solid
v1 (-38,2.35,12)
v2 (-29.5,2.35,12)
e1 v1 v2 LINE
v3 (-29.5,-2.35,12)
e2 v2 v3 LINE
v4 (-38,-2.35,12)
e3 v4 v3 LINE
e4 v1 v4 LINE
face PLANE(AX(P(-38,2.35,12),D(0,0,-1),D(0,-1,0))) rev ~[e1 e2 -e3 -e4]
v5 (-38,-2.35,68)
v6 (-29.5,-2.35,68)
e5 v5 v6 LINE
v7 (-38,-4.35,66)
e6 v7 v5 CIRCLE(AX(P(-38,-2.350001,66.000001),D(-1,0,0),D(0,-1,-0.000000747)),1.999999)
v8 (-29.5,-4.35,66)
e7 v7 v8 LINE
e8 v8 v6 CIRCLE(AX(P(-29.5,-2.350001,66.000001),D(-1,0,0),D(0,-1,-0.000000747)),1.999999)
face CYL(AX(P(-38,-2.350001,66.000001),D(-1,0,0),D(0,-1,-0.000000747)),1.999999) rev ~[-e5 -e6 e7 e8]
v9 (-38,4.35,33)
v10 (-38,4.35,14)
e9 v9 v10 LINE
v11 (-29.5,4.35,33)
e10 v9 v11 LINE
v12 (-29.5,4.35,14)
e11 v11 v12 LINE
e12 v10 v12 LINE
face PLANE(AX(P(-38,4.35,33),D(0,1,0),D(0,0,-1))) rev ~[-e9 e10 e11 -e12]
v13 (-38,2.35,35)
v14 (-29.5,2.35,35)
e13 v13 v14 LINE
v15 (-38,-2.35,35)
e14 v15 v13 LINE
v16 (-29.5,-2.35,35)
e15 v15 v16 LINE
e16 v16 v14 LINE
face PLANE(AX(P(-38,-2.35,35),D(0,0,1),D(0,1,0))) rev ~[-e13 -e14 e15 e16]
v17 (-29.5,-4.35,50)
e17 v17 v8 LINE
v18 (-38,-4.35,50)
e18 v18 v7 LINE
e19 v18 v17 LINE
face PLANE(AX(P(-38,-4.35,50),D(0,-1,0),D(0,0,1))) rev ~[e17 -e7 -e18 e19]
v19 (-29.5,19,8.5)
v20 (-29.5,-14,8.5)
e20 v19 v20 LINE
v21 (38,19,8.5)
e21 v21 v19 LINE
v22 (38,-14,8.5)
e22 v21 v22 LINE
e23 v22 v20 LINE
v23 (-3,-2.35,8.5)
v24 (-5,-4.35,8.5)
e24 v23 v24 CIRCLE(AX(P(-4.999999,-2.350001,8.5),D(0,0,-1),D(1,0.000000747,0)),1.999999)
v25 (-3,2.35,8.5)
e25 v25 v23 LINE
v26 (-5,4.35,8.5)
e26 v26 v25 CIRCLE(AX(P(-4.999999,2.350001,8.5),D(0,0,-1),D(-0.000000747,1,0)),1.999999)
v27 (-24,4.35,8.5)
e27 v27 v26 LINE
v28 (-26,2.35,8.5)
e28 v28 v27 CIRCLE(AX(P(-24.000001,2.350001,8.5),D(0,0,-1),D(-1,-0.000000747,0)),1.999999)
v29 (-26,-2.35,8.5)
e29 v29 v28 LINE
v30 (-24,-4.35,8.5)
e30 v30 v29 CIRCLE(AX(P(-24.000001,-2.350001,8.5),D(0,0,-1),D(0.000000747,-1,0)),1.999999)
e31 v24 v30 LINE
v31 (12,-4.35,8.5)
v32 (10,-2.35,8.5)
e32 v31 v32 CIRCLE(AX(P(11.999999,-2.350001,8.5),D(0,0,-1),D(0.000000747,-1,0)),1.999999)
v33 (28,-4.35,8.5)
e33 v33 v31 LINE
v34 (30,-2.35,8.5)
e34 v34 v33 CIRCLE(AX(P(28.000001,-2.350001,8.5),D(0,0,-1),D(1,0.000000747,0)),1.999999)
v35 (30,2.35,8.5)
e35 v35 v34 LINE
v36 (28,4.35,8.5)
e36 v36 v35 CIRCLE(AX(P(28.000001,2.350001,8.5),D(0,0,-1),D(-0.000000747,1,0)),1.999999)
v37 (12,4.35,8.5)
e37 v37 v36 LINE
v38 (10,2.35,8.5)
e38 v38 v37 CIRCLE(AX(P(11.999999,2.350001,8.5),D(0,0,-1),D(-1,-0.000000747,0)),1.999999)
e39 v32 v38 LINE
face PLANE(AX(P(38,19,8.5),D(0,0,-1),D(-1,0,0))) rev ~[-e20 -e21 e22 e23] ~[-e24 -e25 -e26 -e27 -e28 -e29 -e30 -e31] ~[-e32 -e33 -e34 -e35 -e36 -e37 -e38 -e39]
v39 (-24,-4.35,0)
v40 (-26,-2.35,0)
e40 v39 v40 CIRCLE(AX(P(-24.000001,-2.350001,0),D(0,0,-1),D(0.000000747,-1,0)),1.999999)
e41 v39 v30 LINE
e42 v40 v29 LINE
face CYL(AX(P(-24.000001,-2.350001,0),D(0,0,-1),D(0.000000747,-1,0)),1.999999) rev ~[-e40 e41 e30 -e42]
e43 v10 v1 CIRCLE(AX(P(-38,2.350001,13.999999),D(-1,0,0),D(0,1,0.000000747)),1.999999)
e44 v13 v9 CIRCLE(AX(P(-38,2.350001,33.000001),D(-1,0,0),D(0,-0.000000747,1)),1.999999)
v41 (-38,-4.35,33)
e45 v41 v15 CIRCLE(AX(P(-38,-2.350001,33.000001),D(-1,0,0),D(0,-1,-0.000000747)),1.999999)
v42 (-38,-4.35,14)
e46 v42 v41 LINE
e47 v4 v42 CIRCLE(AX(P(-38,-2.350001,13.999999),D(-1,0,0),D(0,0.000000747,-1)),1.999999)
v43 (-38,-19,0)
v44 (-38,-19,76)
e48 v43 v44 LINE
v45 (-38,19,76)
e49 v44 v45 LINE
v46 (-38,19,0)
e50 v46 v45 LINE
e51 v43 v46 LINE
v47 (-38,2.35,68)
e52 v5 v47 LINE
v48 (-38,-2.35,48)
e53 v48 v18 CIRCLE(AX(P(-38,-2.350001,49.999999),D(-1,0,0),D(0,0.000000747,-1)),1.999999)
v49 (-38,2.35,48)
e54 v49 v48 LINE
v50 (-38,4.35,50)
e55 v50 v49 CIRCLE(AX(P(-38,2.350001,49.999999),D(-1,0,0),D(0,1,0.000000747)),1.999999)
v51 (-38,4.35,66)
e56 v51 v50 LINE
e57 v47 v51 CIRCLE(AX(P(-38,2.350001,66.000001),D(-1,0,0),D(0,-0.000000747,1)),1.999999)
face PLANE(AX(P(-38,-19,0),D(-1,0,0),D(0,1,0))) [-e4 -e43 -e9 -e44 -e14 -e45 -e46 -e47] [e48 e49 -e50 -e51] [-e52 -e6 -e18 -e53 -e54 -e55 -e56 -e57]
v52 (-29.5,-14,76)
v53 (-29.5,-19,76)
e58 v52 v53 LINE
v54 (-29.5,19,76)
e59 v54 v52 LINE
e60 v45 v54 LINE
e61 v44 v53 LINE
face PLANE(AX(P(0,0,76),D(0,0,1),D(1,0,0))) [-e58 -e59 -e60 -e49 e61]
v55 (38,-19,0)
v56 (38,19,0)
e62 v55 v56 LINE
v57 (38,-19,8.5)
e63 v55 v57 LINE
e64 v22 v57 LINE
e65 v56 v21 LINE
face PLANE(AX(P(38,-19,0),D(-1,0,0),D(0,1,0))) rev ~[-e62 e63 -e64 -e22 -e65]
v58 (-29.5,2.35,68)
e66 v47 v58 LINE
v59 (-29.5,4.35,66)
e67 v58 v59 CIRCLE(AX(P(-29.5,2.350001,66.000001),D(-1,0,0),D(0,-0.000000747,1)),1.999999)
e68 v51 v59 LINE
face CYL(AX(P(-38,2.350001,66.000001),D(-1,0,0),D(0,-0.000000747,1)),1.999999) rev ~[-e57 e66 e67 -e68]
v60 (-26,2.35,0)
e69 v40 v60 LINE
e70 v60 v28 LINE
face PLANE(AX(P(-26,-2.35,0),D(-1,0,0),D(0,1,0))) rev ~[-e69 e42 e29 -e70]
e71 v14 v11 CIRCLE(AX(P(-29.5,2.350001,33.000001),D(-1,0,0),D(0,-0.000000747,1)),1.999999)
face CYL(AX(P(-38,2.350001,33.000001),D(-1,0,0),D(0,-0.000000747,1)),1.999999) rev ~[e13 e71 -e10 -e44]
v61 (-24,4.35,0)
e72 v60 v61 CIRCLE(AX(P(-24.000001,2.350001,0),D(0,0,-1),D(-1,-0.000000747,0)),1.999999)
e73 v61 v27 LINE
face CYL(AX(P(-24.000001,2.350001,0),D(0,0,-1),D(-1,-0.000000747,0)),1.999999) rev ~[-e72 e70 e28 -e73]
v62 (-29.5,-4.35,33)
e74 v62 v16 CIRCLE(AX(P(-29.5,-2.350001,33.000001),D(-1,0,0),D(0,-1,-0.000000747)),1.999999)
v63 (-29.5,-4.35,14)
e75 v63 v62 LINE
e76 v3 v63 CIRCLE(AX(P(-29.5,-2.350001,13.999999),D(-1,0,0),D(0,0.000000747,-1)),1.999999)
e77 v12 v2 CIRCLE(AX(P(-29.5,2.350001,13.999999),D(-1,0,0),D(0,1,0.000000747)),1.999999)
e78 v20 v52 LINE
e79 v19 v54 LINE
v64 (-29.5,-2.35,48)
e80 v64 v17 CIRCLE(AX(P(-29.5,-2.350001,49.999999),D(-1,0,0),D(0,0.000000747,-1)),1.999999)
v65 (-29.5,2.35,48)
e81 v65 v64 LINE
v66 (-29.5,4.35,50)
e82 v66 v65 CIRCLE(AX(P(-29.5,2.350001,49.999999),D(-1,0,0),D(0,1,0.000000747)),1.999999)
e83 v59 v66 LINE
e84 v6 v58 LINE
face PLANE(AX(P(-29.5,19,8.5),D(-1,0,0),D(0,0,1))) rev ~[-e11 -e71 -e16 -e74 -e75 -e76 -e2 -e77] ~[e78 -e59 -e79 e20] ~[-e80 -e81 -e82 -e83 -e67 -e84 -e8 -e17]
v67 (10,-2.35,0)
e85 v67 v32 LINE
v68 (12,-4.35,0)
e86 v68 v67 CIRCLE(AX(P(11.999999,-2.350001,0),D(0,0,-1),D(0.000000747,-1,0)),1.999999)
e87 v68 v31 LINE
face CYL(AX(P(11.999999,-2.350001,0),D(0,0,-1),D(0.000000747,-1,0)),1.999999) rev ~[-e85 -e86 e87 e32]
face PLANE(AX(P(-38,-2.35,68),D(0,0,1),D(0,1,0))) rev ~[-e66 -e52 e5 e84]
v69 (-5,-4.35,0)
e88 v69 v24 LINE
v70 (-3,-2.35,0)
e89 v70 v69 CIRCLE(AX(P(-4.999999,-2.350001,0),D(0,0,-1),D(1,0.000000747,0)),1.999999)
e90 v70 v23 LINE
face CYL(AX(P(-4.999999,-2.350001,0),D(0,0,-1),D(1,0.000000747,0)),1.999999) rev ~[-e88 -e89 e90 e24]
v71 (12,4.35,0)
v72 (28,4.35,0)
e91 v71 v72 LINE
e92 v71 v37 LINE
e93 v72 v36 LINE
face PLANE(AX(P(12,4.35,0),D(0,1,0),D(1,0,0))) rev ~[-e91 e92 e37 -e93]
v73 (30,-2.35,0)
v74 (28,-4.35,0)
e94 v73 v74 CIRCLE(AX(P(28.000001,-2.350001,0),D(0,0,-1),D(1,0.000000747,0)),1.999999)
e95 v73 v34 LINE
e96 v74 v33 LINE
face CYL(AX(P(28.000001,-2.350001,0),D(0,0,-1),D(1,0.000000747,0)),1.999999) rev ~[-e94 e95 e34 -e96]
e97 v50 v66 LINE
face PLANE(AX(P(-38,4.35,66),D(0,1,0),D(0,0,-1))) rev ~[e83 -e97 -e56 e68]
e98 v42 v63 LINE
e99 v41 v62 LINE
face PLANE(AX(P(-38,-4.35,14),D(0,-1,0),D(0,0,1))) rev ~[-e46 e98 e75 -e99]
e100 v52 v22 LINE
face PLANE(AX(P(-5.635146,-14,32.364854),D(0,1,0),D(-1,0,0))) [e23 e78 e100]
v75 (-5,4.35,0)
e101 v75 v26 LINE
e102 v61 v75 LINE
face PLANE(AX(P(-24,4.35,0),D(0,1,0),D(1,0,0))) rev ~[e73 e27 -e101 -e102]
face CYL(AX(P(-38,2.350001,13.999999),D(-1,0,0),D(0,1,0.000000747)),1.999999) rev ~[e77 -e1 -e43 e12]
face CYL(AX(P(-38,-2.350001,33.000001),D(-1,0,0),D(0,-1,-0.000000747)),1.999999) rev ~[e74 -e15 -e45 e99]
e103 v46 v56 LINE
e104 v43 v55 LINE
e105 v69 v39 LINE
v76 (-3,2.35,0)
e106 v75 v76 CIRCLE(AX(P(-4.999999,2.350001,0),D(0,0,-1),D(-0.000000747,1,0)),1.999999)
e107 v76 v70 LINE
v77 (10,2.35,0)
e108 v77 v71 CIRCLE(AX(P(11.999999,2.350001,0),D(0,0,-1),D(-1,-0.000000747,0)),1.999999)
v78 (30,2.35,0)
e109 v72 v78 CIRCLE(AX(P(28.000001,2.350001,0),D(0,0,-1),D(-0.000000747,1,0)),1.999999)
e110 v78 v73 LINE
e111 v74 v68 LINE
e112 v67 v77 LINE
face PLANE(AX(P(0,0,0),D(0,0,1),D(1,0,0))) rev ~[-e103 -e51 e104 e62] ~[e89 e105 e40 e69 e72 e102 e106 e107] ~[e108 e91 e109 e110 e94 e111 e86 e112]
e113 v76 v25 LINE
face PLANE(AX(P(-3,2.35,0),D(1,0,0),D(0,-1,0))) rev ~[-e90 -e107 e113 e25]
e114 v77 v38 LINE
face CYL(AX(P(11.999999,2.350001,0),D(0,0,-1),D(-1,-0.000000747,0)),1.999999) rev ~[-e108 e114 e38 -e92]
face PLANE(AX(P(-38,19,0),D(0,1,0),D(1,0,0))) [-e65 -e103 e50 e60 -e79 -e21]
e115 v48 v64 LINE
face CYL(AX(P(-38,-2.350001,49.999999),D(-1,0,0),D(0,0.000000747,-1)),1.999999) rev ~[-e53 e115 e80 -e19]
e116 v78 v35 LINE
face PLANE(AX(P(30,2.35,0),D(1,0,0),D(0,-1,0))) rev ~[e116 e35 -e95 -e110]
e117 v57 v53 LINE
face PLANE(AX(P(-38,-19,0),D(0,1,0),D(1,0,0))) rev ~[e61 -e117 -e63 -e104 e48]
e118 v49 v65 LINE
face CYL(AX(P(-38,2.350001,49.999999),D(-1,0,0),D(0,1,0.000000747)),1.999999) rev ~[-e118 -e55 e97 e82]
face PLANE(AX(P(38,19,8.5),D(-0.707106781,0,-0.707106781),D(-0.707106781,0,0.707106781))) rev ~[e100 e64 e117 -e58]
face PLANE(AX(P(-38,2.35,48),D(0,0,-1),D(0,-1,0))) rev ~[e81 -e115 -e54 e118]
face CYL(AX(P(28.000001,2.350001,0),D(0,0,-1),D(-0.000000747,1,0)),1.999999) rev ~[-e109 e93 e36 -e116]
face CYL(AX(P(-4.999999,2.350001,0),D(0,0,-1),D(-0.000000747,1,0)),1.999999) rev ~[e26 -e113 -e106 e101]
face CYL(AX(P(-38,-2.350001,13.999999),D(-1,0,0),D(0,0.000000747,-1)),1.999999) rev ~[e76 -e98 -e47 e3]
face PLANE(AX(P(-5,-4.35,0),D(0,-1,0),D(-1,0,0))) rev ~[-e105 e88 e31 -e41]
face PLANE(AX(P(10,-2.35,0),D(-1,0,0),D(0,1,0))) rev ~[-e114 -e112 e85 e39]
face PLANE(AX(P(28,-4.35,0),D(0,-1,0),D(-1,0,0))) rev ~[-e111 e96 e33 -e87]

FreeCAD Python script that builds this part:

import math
import FreeCAD as App
import Part
import Sketcher

V = App.Vector


def add_polygon(sketch, points):
    """Adds a closed chain of lines whose ends are joined by coincident constraints."""
    first, n = sketch.GeometryCount, len(points)
    for a, b in zip(points, points[1:] + points[:1]):
        sketch.addGeometry(Part.LineSegment(App.Vector(*a, 0), App.Vector(*b, 0)), False)
    for i in range(n):
        sketch.addConstraint(Sketcher.Constraint("Coincident", first + i, 2, first + (i + 1) % n, 1))

doc = App.newDocument("Part")
body = doc.addObject("PartDesign::Body", "Body")

# Sketch on XY plane
sketch1 = doc.addObject("Sketcher::SketchObject", "Sketch")
body.addObject(sketch1)
sketch1.AttachmentSupport = (doc.XY_Plane, [""])
sketch1.MapMode = "FlatFace"
add_polygon(sketch1, [(-38, 19), (-38, -19), (38, -19), (38, 19)])  # lines 0-3
sketch1.addConstraint([
    Sketcher.Constraint("Vertical", 0),
    Sketcher.Constraint("Horizontal", 1),
    Sketcher.Constraint("Vertical", 2),
    Sketcher.Constraint("Horizontal", 3),
    Sketcher.Constraint("Symmetric", 0, 2, 2, 2, -1, 1),
    Sketcher.Constraint("DistanceX", 1, 1, 1, 2, 76.0),
    Sketcher.Constraint("DistanceY", 0, 2, 0, 1, 38.0),
])
pad1 = doc.addObject("PartDesign::Pad", "Pad")
body.addObject(pad1)
pad1.Profile = sketch1
pad1.Length = 76

# Sketch on XZ plane
sketch2 = doc.addObject("Sketcher::SketchObject", "Sketch001")
body.addObject(sketch2)
sketch2.AttachmentSupport = (doc.XZ_Plane, [""])
sketch2.MapMode = "FlatFace"
sketch2.AttachmentOffset = App.Placement(V(0, 0, -19), App.Rotation())
add_polygon(sketch2, [(38, 8), (-30, 76), (38, 76)])  # lines 0-2
sketch2.addConstraint([
    Sketcher.Constraint("Horizontal", 1),
    Sketcher.Constraint("Vertical", 2),
    Sketcher.Constraint("Equal", 1, 2),
    Sketcher.Constraint("DistanceX", 1, 1, 1, 2, 67.5),
    Sketcher.Constraint("DistanceY", -1, 1, 0, 2, 76.0),
    Sketcher.Constraint("DistanceX", -1, 1, 1, 2, 38.0),
])
pocket1 = doc.addObject("PartDesign::Pocket", "Pocket")
body.addObject(pocket1)
pocket1.Profile = sketch2
pocket1.Type = "ThroughAll"
pocket1.Reversed = True

# Sketch on XZ plane
sketch3 = doc.addObject("Sketcher::SketchObject", "Sketch002")
body.addObject(sketch3)
sketch3.AttachmentSupport = (doc.XZ_Plane, [""])
sketch3.MapMode = "FlatFace"
sketch3.AttachmentOffset = App.Placement(V(0, 0, -19), App.Rotation())
add_polygon(sketch3, [(-30, 8), (-30, 76), (38, 8)])  # lines 0-2
sketch3.addConstraint([
    Sketcher.Constraint("Vertical", 0),
    Sketcher.Constraint("Horizontal", 2),
    Sketcher.Constraint("Equal", 2, 0),
    Sketcher.Constraint("DistanceX", 2, 2, 2, 1, 67.5),
    Sketcher.Constraint("DistanceY", -1, 1, 0, 2, 76.0),
    Sketcher.Constraint("DistanceX", -1, 1, 1, 2, 38.0),
])
pocket2 = doc.addObject("PartDesign::Pocket", "Pocket001")
body.addObject(pocket2)
pocket2.Profile = sketch3
pocket2.Length = 33
pocket2.Reversed = True

# Sketch on YZ plane
sketch4 = doc.addObject("Sketcher::SketchObject", "Sketch003")
body.addObject(sketch4)
sketch4.AttachmentSupport = (doc.YZ_Plane, [""])
sketch4.MapMode = "FlatFace"
sketch4.AttachmentOffset = App.Placement(V(0, 0, -38), App.Rotation())
sketch4.addGeometry([
    Part.LineSegment(V(-2.4, 68, 0), V(2.4, 68, 0)),  # 0
    Part.ArcOfCircle(Part.Circle(V(2.4, 66, 0), V(0, 0, 1), 2), math.radians(0), math.radians(90)),  # 1
    Part.LineSegment(V(4.3, 66, 0), V(4.3, 50, 0)),  # 2
    Part.ArcOfCircle(Part.Circle(V(2.4, 50, 0), V(0, 0, 1), 2), math.radians(-90), math.radians(0)),  # 3
    Part.LineSegment(V(2.4, 48, 0), V(-2.4, 48, 0)),  # 4
    Part.ArcOfCircle(Part.Circle(V(-2.4, 50, 0), V(0, 0, 1), 2), math.radians(180), math.radians(270)),  # 5
    Part.LineSegment(V(-4.3, 50, 0), V(-4.3, 66, 0)),  # 6
    Part.ArcOfCircle(Part.Circle(V(-2.4, 66, 0), V(0, 0, 1), 2), math.radians(90), math.radians(180)),  # 7
    Part.LineSegment(V(-2.4, 35, 0), V(2.4, 35, 0)),  # 8
    Part.ArcOfCircle(Part.Circle(V(2.4, 33, 0), V(0, 0, 1), 2), math.radians(0), math.radians(90)),  # 9
    Part.LineSegment(V(4.3, 33, 0), V(4.3, 14, 0)),  # 10
    Part.ArcOfCircle(Part.Circle(V(2.4, 14, 0), V(0, 0, 1), 2), math.radians(-90), math.radians(0)),  # 11
    Part.LineSegment(V(2.4, 12, 0), V(-2.4, 12, 0)),  # 12
    Part.ArcOfCircle(Part.Circle(V(-2.4, 14, 0), V(0, 0, 1), 2), math.radians(180), math.radians(270)),  # 13
    Part.LineSegment(V(-4.3, 14, 0), V(-4.3, 33, 0)),  # 14
    Part.ArcOfCircle(Part.Circle(V(-2.4, 33, 0), V(0, 0, 1), 2), math.radians(90), math.radians(180)),  # 15
], False)
sketch4.addConstraint([
    Sketcher.Constraint("Tangent", 0, 2, 1, 2),
    Sketcher.Constraint("Tangent", 1, 1, 2, 1),
    Sketcher.Constraint("Tangent", 2, 2, 3, 2),
    Sketcher.Constraint("Tangent", 3, 1, 4, 1),
    Sketcher.Constraint("Tangent", 4, 2, 5, 2),
    Sketcher.Constraint("Tangent", 5, 1, 6, 1),
    Sketcher.Constraint("Tangent", 6, 2, 7, 2),
    Sketcher.Constraint("Tangent", 7, 1, 0, 1),
    Sketcher.Constraint("Tangent", 8, 2, 9, 2),
    Sketcher.Constraint("Tangent", 9, 1, 10, 1),
    Sketcher.Constraint("Tangent", 10, 2, 11, 2),
    Sketcher.Constraint("Tangent", 11, 1, 12, 1),
    Sketcher.Constraint("Tangent", 12, 2, 13, 2),
    Sketcher.Constraint("Tangent", 13, 1, 14, 1),
    Sketcher.Constraint("Tangent", 14, 2, 15, 2),
    Sketcher.Constraint("Tangent", 15, 1, 8, 1),
    Sketcher.Constraint("Horizontal", 0),
    Sketcher.Constraint("Vertical", 2),
    Sketcher.Constraint("Horizontal", 4),
    Sketcher.Constraint("Vertical", 6),
    Sketcher.Constraint("Horizontal", 8),
    Sketcher.Constraint("Vertical", 10),
    Sketcher.Constraint("Horizontal", 12),
    Sketcher.Constraint("Vertical", 14),
    Sketcher.Constraint("Equal", 1, 3),
    Sketcher.Constraint("Equal", 3, 5),
    Sketcher.Constraint("Equal", 5, 7),
    Sketcher.Constraint("Equal", 7, 9),
    Sketcher.Constraint("Equal", 9, 11),
    Sketcher.Constraint("Equal", 11, 13),
    Sketcher.Constraint("Equal", 13, 15),
    Sketcher.Constraint("Vertical", 3, 3, 9, 3),
    Sketcher.Constraint("Vertical", 7, 3, 13, 3),
    Sketcher.Constraint("Radius", 1, 1.999999),
    Sketcher.Constraint("DistanceY", 2, 2, 2, 1, 16.0),
    Sketcher.Constraint("DistanceY", 10, 2, 10, 1, 19.0),
    Sketcher.Constraint("DistanceX", 0, 1, 0, 2, 4.7),
    Sketcher.Constraint("DistanceY", -1, 1, 1, 3, 66.000001),
    Sketcher.Constraint("DistanceY", -1, 1, 9, 3, 33.000001),
    Sketcher.Constraint("DistanceX", -1, 1, 1, 3, 2.350001),
])
pocket3 = doc.addObject("PartDesign::Pocket", "Pocket002")
body.addObject(pocket3)
pocket3.Profile = sketch4
pocket3.Type = "ThroughAll"
pocket3.Reversed = True

# Sketch on XY plane
sketch5 = doc.addObject("Sketcher::SketchObject", "Sketch004")
body.addObject(sketch5)
sketch5.AttachmentSupport = (doc.XY_Plane, [""])
sketch5.MapMode = "FlatFace"
sketch5.addGeometry([
    Part.LineSegment(V(-3, 2.4, 0), V(-3, -2.4, 0)),  # 0
    Part.ArcOfCircle(Part.Circle(V(-5, -2.4, 0), V(0, 0, 1), 2), math.radians(-90), math.radians(0)),  # 1
    Part.LineSegment(V(-5, -4.3, 0), V(-24, -4.3, 0)),  # 2
    Part.ArcOfCircle(Part.Circle(V(-24, -2.4, 0), V(0, 0, 1), 2), math.radians(180), math.radians(270)),  # 3
    Part.LineSegment(V(-26, -2.4, 0), V(-26, 2.4, 0)),  # 4
    Part.ArcOfCircle(Part.Circle(V(-24, 2.4, 0), V(0, 0, 1), 2), math.radians(90), math.radians(180)),  # 5
    Part.LineSegment(V(-24, 4.3, 0), V(-5, 4.3, 0)),  # 6
    Part.ArcOfCircle(Part.Circle(V(-5, 2.4, 0), V(0, 0, 1), 2), math.radians(0), math.radians(90)),  # 7
    Part.LineSegment(V(30, 2.4, 0), V(30, -2.4, 0)),  # 8
    Part.ArcOfCircle(Part.Circle(V(28, -2.4, 0), V(0, 0, 1), 2), math.radians(-90), math.radians(0)),  # 9
    Part.LineSegment(V(28, -4.3, 0), V(12, -4.3, 0)),  # 10
    Part.ArcOfCircle(Part.Circle(V(12, -2.4, 0), V(0, 0, 1), 2), math.radians(180), math.radians(270)),  # 11
    Part.LineSegment(V(10, -2.4, 0), V(10, 2.4, 0)),  # 12
    Part.ArcOfCircle(Part.Circle(V(12, 2.4, 0), V(0, 0, 1), 2), math.radians(90), math.radians(180)),  # 13
    Part.LineSegment(V(12, 4.3, 0), V(28, 4.3, 0)),  # 14
    Part.ArcOfCircle(Part.Circle(V(28, 2.4, 0), V(0, 0, 1), 2), math.radians(0), math.radians(90)),  # 15
], False)
sketch5.addConstraint([
    Sketcher.Constraint("Tangent", 0, 2, 1, 2),
    Sketcher.Constraint("Tangent", 1, 1, 2, 1),
    Sketcher.Constraint("Tangent", 2, 2, 3, 2),
    Sketcher.Constraint("Tangent", 3, 1, 4, 1),
    Sketcher.Constraint("Tangent", 4, 2, 5, 2),
    Sketcher.Constraint("Tangent", 5, 1, 6, 1),
    Sketcher.Constraint("Tangent", 6, 2, 7, 2),
    Sketcher.Constraint("Tangent", 7, 1, 0, 1),
    Sketcher.Constraint("Tangent", 8, 2, 9, 2),
    Sketcher.Constraint("Tangent", 9, 1, 10, 1),
    Sketcher.Constraint("Tangent", 10, 2, 11, 2),
    Sketcher.Constraint("Tangent", 11, 1, 12, 1),
    Sketcher.Constraint("Tangent", 12, 2, 13, 2),
    Sketcher.Constraint("Tangent", 13, 1, 14, 1),
    Sketcher.Constraint("Tangent", 14, 2, 15, 2),
    Sketcher.Constraint("Tangent", 15, 1, 8, 1),
    Sketcher.Constraint("Vertical", 0),
    Sketcher.Constraint("Horizontal", 2),
    Sketcher.Constraint("Vertical", 4),
    Sketcher.Constraint("Horizontal", 6),
    Sketcher.Constraint("Vertical", 8),
    Sketcher.Constraint("Horizontal", 10),
    Sketcher.Constraint("Vertical", 12),
    Sketcher.Constraint("Horizontal", 14),
    Sketcher.Constraint("Equal", 1, 3),
    Sketcher.Constraint("Equal", 3, 5),
    Sketcher.Constraint("Equal", 5, 7),
    Sketcher.Constraint("Equal", 7, 9),
    Sketcher.Constraint("Equal", 9, 11),
    Sketcher.Constraint("Equal", 11, 13),
    Sketcher.Constraint("Equal", 13, 15),
    Sketcher.Constraint("Horizontal", 3, 3, 9, 3),
    Sketcher.Constraint("Horizontal", 7, 3, 13, 3),
    Sketcher.Constraint("Radius", 1, 1.999999),
    Sketcher.Constraint("DistanceX", 2, 2, 2, 1, 19.0),
    Sketcher.Constraint("DistanceX", 10, 2, 10, 1, 16.0),
    Sketcher.Constraint("DistanceY", 0, 2, 0, 1, 4.7),
    Sketcher.Constraint("DistanceX", 1, 3, -1, 1, 4.999999),
    Sketcher.Constraint("DistanceX", -1, 1, 9, 3, 28.000001),
    Sketcher.Constraint("DistanceY", 1, 3, -1, 1, 2.350001),
])
pocket4 = doc.addObject("PartDesign::Pocket", "Pocket003")
body.addObject(pocket4)
pocket4.Profile = sketch5
pocket4.Type = "ThroughAll"
pocket4.Reversed = True

doc.recompute()
